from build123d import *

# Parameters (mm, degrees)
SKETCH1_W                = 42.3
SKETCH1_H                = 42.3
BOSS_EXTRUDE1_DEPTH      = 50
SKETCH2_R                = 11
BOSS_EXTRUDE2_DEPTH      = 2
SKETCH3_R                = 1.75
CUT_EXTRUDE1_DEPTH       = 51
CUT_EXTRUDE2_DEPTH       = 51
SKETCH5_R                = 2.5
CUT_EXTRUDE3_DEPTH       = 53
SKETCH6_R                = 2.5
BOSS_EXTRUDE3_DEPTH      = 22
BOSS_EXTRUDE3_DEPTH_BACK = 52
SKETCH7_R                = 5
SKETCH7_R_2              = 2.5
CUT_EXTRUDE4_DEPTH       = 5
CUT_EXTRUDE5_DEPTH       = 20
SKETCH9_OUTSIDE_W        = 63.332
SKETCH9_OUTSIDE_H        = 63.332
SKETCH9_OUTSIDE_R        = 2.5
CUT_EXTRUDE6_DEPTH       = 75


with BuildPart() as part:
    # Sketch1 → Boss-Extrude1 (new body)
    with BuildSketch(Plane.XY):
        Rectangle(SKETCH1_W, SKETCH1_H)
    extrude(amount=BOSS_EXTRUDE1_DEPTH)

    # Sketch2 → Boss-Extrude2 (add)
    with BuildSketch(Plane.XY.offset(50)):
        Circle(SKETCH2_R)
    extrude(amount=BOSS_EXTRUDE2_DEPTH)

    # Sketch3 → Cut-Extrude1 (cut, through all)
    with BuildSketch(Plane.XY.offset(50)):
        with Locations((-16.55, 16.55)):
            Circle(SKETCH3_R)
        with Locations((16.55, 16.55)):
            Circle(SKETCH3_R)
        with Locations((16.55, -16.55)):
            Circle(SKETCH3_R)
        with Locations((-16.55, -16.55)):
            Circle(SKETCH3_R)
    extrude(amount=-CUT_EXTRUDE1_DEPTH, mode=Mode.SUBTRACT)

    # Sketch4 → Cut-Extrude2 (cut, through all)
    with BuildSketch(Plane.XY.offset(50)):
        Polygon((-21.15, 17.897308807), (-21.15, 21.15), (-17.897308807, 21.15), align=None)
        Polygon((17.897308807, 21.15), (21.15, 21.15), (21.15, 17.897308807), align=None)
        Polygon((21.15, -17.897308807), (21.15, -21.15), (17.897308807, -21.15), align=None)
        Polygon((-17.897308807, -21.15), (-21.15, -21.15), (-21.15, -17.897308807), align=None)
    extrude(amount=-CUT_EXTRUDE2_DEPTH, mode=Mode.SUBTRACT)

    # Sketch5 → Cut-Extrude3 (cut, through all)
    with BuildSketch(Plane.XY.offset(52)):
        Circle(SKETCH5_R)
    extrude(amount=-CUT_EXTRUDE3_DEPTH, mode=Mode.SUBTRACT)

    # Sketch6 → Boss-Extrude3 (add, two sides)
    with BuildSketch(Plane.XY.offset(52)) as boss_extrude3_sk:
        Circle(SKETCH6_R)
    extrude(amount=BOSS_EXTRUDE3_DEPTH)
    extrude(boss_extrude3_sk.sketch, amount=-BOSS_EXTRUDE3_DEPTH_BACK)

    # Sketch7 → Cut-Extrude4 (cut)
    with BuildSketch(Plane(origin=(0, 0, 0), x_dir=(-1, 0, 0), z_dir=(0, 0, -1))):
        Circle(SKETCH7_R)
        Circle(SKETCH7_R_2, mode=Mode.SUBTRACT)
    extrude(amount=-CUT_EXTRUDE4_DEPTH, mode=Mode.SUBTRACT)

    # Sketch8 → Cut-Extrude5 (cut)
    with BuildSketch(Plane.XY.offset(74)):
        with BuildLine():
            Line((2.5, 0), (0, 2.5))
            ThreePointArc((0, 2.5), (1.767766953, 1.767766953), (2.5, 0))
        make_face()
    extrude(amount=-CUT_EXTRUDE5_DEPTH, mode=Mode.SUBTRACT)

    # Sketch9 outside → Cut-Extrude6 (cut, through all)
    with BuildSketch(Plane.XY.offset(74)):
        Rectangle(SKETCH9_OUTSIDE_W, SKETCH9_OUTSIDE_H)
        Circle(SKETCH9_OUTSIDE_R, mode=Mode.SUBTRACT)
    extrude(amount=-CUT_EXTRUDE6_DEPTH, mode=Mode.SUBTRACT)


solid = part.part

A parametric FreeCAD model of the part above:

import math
import FreeCAD as App
import Part
import Sketcher

V = App.Vector


def add_polygon(sketch, points):
    """Adds a closed chain of lines whose ends are joined by coincident constraints."""
    first, n = sketch.GeometryCount, len(points)
    for a, b in zip(points, points[1:] + points[:1]):
        sketch.addGeometry(Part.LineSegment(App.Vector(*a, 0), App.Vector(*b, 0)), False)
    for i in range(n):
        sketch.addConstraint(Sketcher.Constraint("Coincident", first + i, 2, first + (i + 1) % n, 1))

doc = App.newDocument("Part")
body = doc.addObject("PartDesign::Body", "Body")

# Sketch on XY plane
sketch1 = doc.addObject("Sketcher::SketchObject", "Sketch")
body.addObject(sketch1)
sketch1.AttachmentSupport = (doc.XY_Plane, [""])
sketch1.MapMode = "FlatFace"
add_polygon(sketch1, [(-21, 21), (-21, -21), (21, -21), (21, 21)])  # lines 0-3
sketch1.addConstraint([
    Sketcher.Constraint("Vertical", 0),
    Sketcher.Constraint("Horizontal", 1),
    Sketcher.Constraint("Vertical", 2),
    Sketcher.Constraint("Horizontal", 3),
    Sketcher.Constraint("Symmetric", 0, 2, 2, 2, -1, 1),
    Sketcher.Constraint("Equal", 3, 0),
    Sketcher.Constraint("DistanceX", 1, 1, 1, 2, 42.3),
])
pad1 = doc.addObject("PartDesign::Pad", "Pad")
body.addObject(pad1)
pad1.Profile = sketch1
pad1.Length = 50

# Sketch on XY plane
sketch2 = doc.addObject("Sketcher::SketchObject", "Sketch001")
body.addObject(sketch2)
sketch2.AttachmentSupport = (doc.XY_Plane, [""])
sketch2.MapMode = "FlatFace"
sketch2.AttachmentOffset = App.Placement(V(0, 0, 50), App.Rotation())
sketch2.addGeometry(Part.Circle(V(0, 0, 0), V(0, 0, 1), 11), False)
sketch2.addConstraint([
    Sketcher.Constraint("Coincident", 0, 3, -1, 1),
    Sketcher.Constraint("Diameter", 0, 22.0),
])
pad2 = doc.addObject("PartDesign::Pad", "Pad001")
body.addObject(pad2)
pad2.Profile = sketch2
pad2.Length = 2

# Sketch on XY plane
sketch3 = doc.addObject("Sketcher::SketchObject", "Sketch002")
body.addObject(sketch3)
sketch3.AttachmentSupport = (doc.XY_Plane, [""])
sketch3.MapMode = "FlatFace"
sketch3.AttachmentOffset = App.Placement(V(0, 0, 50), App.Rotation())
sketch3.addGeometry([
    Part.Circle(V(-16.6, 16.6, 0), V(0, 0, 1), 1.8),
    Part.Circle(V(16.6, 16.6, 0), V(0, 0, 1), 1.8),
    Part.Circle(V(16.6, -16.6, 0), V(0, 0, 1), 1.8),
    Part.Circle(V(-16.6, -16.6, 0), V(0, 0, 1), 1.8),
], False)
sketch3.addConstraint([
    Sketcher.Constraint("Equal", 0, 1),
    Sketcher.Constraint("Equal", 1, 2),
    Sketcher.Constraint("Equal", 2, 3),
    Sketcher.Constraint("Symmetric", 0, 3, 2, 3, -1, 1),
    Sketcher.Constraint("Symmetric", 1, 3, 3, 3, -1, 1),
    Sketcher.Constraint("Symmetric", 0, 3, 1, 3, -2),
    Sketcher.Constraint("Diameter", 0, 3.5),
    Sketcher.Constraint("DistanceX", 0, 3, 1, 3, 33.1),
    Sketcher.Constraint("DistanceY", 2, 3, 1, 3, 33.1),
])
pocket1 = doc.addObject("PartDesign::Pocket", "Pocket")
body.addObject(pocket1)
pocket1.Profile = sketch3
pocket1.Type = "ThroughAll"

# Sketch on XY plane
sketch4 = doc.addObject("Sketcher::SketchObject", "Sketch003")
body.addObject(sketch4)
sketch4.AttachmentSupport = (doc.XY_Plane, [""])
sketch4.MapMode = "FlatFace"
sketch4.AttachmentOffset = App.Placement(V(0, 0, 50), App.Rotation())
add_polygon(sketch4, [(-21.1, 21.1), (-21.1, 17.9), (-17.9, 21.1)])  # lines 0-2
add_polygon(sketch4, [(21.1, 21.1), (17.9, 21.1), (21.1, 17.9)])  # lines 3-5
add_polygon(sketch4, [(21.1, -21.1), (21.1, -17.9), (17.9, -21.1)])  # lines 6-8
add_polygon(sketch4, [(-21.1, -21.1), (-17.9, -21.1), (-21.1, -17.9)])  # lines 9-11
sketch4.addConstraint([
    Sketcher.Constraint("Vertical", 0),
    Sketcher.Constraint("Horizontal", 2),
    Sketcher.Constraint("Horizontal", 3),
    Sketcher.Constraint("Vertical", 5),
    Sketcher.Constraint("Vertical", 6),
    Sketcher.Constraint("Horizontal", 8),
    Sketcher.Constraint("Horizontal", 9),
    Sketcher.Constraint("Vertical", 11),
    Sketcher.Constraint("Symmetric", 0, 2, 6, 2, -1, 1),
    Sketcher.Constraint("Symmetric", 1, 2, 7, 2, -1, 1),
    Sketcher.Constraint("Symmetric", 3, 2, 9, 2, -1, 1),
    Sketcher.Constraint("Symmetric", 4, 2, 10, 2, -1, 1),
    Sketcher.Constraint("Symmetric", 1, 2, 3, 2, -2),
    Sketcher.Constraint("Symmetric", 0, 2, 4, 2, -2),
    Sketcher.Constraint("Perpendicular", 1, 4),
    Sketcher.Constraint("Distance", 1, 4.6),
    Sketcher.Constraint("DistanceX", 0, 2, 4, 2, 42.3),
    Sketcher.Constraint("DistanceY", 7, 2, 3, 2, 42.3),
])
pocket2 = doc.addObject("PartDesign::Pocket", "Pocket001")
body.addObject(pocket2)
pocket2.Profile = sketch4
pocket2.Type = "ThroughAll"

# Sketch on XY plane
sketch5 = doc.addObject("Sketcher::SketchObject", "Sketch004")
body.addObject(sketch5)
sketch5.AttachmentSupport = (doc.XY_Plane, [""])
sketch5.MapMode = "FlatFace"
sketch5.AttachmentOffset = App.Placement(V(0, 0, 52), App.Rotation())
sketch5.addGeometry(Part.Circle(V(0, 0, 0), V(0, 0, 1), 2.5), False)
sketch5.addConstraint([
    Sketcher.Constraint("Coincident", 0, 3, -1, 1),
    Sketcher.Constraint("Diameter", 0, 5.0),
])
pocket3 = doc.addObject("PartDesign::Pocket", "Pocket002")
body.addObject(pocket3)
pocket3.Profile = sketch5
pocket3.Type = "ThroughAll"

# Sketch on XY plane
sketch6 = doc.addObject("Sketcher::SketchObject", "Sketch005")
body.addObject(sketch6)
sketch6.AttachmentSupport = (doc.XY_Plane, [""])
sketch6.MapMode = "FlatFace"
sketch6.AttachmentOffset = App.Placement(V(0, 0, 52), App.Rotation())
sketch6.addGeometry(Part.Circle(V(0, 0, 0), V(0, 0, 1), 2.5), False)
sketch6.addConstraint([
    Sketcher.Constraint("Coincident", 0, 3, -1, 1),
    Sketcher.Constraint("Diameter", 0, 5.0),
])
pad3 = doc.addObject("PartDesign::Pad", "Pad002")
body.addObject(pad3)
pad3.Profile = sketch6
pad3.Type = "TwoLengths"
pad3.Length = 22
pad3.Length2 = 52

# Sketch on XY plane
sketch7 = doc.addObject("Sketcher::SketchObject", "Sketch006")
body.addObject(sketch7)
sketch7.AttachmentSupport = (doc.XY_Plane, [""])
sketch7.MapMode = "FlatFace"
sketch7.addGeometry([
    Part.Circle(V(0, 0, 0), V(0, 0, 1), 5),
    Part.Circle(V(0, 0, 0), V(0, 0, 1), 2.5),
], False)
sketch7.addConstraint([
    Sketcher.Constraint("Coincident", 0, 3, -1, 1),
    Sketcher.Constraint("Coincident", 1, 3, -1, 1),
    Sketcher.Constraint("Diameter", 0, 10.0),
    Sketcher.Constraint("Diameter", 1, 5.0),
])
pocket4 = doc.addObject("PartDesign::Pocket", "Pocket003")
body.addObject(pocket4)
pocket4.Profile = sketch7
pocket4.Length = 5
pocket4.Reversed = True

# Sketch on XY plane
sketch8 = doc.addObject("Sketcher::SketchObject", "Sketch007")
body.addObject(sketch8)
sketch8.AttachmentSupport = (doc.XY_Plane, [""])
sketch8.MapMode = "FlatFace"
sketch8.AttachmentOffset = App.Placement(V(0, 0, 74), App.Rotation())
sketch8.addGeometry([
    Part.LineSegment(V(0, 2.5, 0), V(2.5, 0, 0)),
    Part.ArcOfCircle(Part.Circle(V(0, 0, 0), V(0, 0, 1), 2.5), math.radians(0), math.radians(90)),
], False)
sketch8.addConstraint([
    Sketcher.Constraint("Coincident", 0, 1, 1, 2),
    Sketcher.Constraint("Coincident", 1, 1, 0, 2),
    Sketcher.Constraint("Coincident", 1, 3, -1, 1),
    Sketcher.Constraint("PointOnObject", 0, 1, -2),
    Sketcher.Constraint("PointOnObject", 1, 1, -1),
    Sketcher.Constraint("Radius", 1, 2.5),
])
pocket5 = doc.addObject("PartDesign::Pocket", "Pocket004")
body.addObject(pocket5)
pocket5.Profile = sketch8
pocket5.Length = 20

# Sketch on XY plane
sketch9 = doc.addObject("Sketcher::SketchObject", "Sketch008")
body.addObject(sketch9)
sketch9.AttachmentSupport = (doc.XY_Plane, [""])
sketch9.MapMode = "FlatFace"
sketch9.AttachmentOffset = App.Placement(V(0, 0, 74), App.Rotation())
add_polygon(sketch9, [(-31.7, 31.7), (-31.7, -31.7), (31.7, -31.7), (31.7, 31.7)])  # lines 0-3
sketch9.addGeometry(Part.Circle(V(0, 0, 0), V(0, 0, 1), 2.5), False)  # 4
sketch9.addConstraint([
    Sketcher.Constraint("Vertical", 0),
    Sketcher.Constraint("Horizontal", 1),
    Sketcher.Constraint("Vertical", 2),
    Sketcher.Constraint("Horizontal", 3),
    Sketcher.Constraint("Coincident", 4, 3, -1, 1),
    Sketcher.Constraint("Symmetric", 0, 2, 2, 2, -1, 1),
    Sketcher.Constraint("Equal", 3, 0),
    Sketcher.Constraint("Diameter", 4, 5.0),
    Sketcher.Constraint("DistanceX", 1, 1, 1, 2, 63.332),
])
pocket6 = doc.addObject("PartDesign::Pocket", "Pocket005")
body.addObject(pocket6)
pocket6.Profile = sketch9
pocket6.Type = "ThroughAll"

doc.recompute()
